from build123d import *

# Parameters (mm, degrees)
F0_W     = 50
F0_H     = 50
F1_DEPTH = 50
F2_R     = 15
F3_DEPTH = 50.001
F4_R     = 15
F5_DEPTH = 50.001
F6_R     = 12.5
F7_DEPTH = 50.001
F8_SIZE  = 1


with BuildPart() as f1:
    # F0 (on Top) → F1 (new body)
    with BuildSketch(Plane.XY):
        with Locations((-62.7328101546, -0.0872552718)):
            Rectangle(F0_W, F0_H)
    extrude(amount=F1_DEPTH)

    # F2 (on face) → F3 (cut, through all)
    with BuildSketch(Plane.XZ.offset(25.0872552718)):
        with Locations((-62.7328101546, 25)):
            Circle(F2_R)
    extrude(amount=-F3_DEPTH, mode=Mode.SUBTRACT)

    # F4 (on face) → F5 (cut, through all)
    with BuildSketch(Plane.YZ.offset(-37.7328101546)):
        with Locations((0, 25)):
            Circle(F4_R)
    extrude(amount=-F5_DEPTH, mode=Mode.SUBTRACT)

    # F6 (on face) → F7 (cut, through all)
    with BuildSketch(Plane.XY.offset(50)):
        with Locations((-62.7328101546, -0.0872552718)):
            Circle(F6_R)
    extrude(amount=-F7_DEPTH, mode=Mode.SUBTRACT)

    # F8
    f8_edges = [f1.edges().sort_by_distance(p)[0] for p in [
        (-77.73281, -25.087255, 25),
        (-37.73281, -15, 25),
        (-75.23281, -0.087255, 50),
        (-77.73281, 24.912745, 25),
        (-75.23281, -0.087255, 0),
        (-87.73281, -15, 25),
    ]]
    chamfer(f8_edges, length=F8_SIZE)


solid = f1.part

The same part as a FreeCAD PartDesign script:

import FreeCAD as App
import Part
import Sketcher
from FreeCAD import Vector


def edges_at(feature, points):
    """Names of the edges that pass closest to the given points."""
    edges = feature.Shape.Edges
    near = lambda p: min(range(len(edges)), key=lambda i: edges[i].distToShape(Part.Vertex(*p))[0])
    return sorted({f"Edge{near(p) + 1}" for p in points})

doc = App.newDocument("Part")
params = doc.addObject("Spreadsheet::Sheet", "Params")
for row, (alias, value) in enumerate([
    ("sketch1_width", "50 mm"),
    ("pad1_length", "50 mm"),
    ("sketch2_diameter", "30 mm"),
    ("sketch3_diameter", "30 mm"),
    ("sketch4_diameter", "25 mm"),
    ("chamfer_size", "1 mm"),
], start=1):
    params.set(f"A{row}", alias)
    params.set(f"B{row}", "=" + value)
    params.setAlias(f"B{row}", alias)

body = doc.addObject("PartDesign::Body", "Body")

sketch1 = body.newObject("Sketcher::SketchObject", "Sketch")
sketch1.AttachmentSupport = (doc.getObject("XY_Plane"), [""])
sketch1.MapMode = "FlatFace"
sketch1.addGeometry(Part.LineSegment(Vector(-87.73281, 24.912745, 0), Vector(-87.73281, -25.087255, 0)), False)
sketch1.addGeometry(Part.LineSegment(Vector(-87.73281, -25.087255, 0), Vector(-37.73281, -25.087255, 0)), False)
sketch1.addGeometry(Part.LineSegment(Vector(-37.73281, -25.087255, 0), Vector(-37.73281, 24.912745, 0)), False)
sketch1.addGeometry(Part.LineSegment(Vector(-37.73281, 24.912745, 0), Vector(-87.73281, 24.912745, 0)), False)
sketch1.addConstraint(Sketcher.Constraint("Coincident", 0, 2, 1, 1))
sketch1.addConstraint(Sketcher.Constraint("Coincident", 1, 2, 2, 1))
sketch1.addConstraint(Sketcher.Constraint("Coincident", 2, 2, 3, 1))
sketch1.addConstraint(Sketcher.Constraint("Coincident", 3, 2, 0, 1))
sketch1.addConstraint(Sketcher.Constraint("Vertical", 0))
sketch1.addConstraint(Sketcher.Constraint("Horizontal", 1))
sketch1.addConstraint(Sketcher.Constraint("Vertical", 2))
sketch1.addConstraint(Sketcher.Constraint("Horizontal", 3))
sketch1.addConstraint(Sketcher.Constraint("Equal", 3, 0))
sketch1.addConstraint(Sketcher.Constraint("DistanceX", 1, 1, 1, 2, 50.0))
sketch1.addConstraint(Sketcher.Constraint("DistanceX", 0, 2, -1, 1, 87.73281))
sketch1.addConstraint(Sketcher.Constraint("DistanceY", 0, 2, -1, 1, 25.087255))
sketch1.setExpression("Constraints[9]", "Params.sketch1_width")
pad1 = body.newObject("PartDesign::Pad", "Pad")
pad1.Profile = sketch1
pad1.setExpression("Length", "Params.pad1_length")

sketch2 = body.newObject("Sketcher::SketchObject", "Sketch001")
sketch2.AttachmentSupport = (doc.getObject("XZ_Plane"), [""])
sketch2.MapMode = "FlatFace"
sketch2.AttachmentOffset = App.Placement(Vector(0, 0, 25.087255), App.Rotation())
sketch2.addGeometry(Part.Circle(Vector(-62.73281, 25, 0), Vector(0, 0, 1), 15), False)
sketch2.addConstraint(Sketcher.Constraint("Diameter", 0, 30.0))
sketch2.addConstraint(Sketcher.Constraint("DistanceY", -1, 1, 0, 3, 25.0))
sketch2.addConstraint(Sketcher.Constraint("DistanceX", 0, 3, -1, 1, 62.73281))
sketch2.setExpression("Constraints[0]", "Params.sketch2_diameter")
pocket1 = body.newObject("PartDesign::Pocket", "Pocket")
pocket1.Profile = sketch2
pocket1.Type = "ThroughAll"

sketch3 = body.newObject("Sketcher::SketchObject", "Sketch002")
sketch3.AttachmentSupport = (doc.getObject("YZ_Plane"), [""])
sketch3.MapMode = "FlatFace"
sketch3.AttachmentOffset = App.Placement(Vector(0, 0, -37.73281), App.Rotation())
sketch3.addGeometry(Part.Circle(Vector(0, 25, 0), Vector(0, 0, 1), 15), False)
sketch3.addConstraint(Sketcher.Constraint("PointOnObject", 0, 3, -2))
sketch3.addConstraint(Sketcher.Constraint("Diameter", 0, 30.0))
sketch3.addConstraint(Sketcher.Constraint("DistanceY", -1, 1, 0, 3, 25.0))
sketch3.setExpression("Constraints[1]", "Params.sketch3_diameter")
pocket2 = body.newObject("PartDesign::Pocket", "Pocket001")
pocket2.Profile = sketch3
pocket2.Type = "ThroughAll"

sketch4 = body.newObject("Sketcher::SketchObject", "Sketch003")
sketch4.AttachmentSupport = (doc.getObject("XY_Plane"), [""])
sketch4.MapMode = "FlatFace"
sketch4.AttachmentOffset = App.Placement(Vector(0, 0, 50), App.Rotation())
sketch4.addGeometry(Part.Circle(Vector(-62.73281, -0.087255, 0), Vector(0, 0, 1), 12.5), False)
sketch4.addConstraint(Sketcher.Constraint("Diameter", 0, 25.0))
sketch4.addConstraint(Sketcher.Constraint("DistanceX", 0, 3, -1, 1, 62.73281))
sketch4.addConstraint(Sketcher.Constraint("DistanceY", 0, 3, -1, 1, 0.087255))
sketch4.setExpression("Constraints[0]", "Params.sketch4_diameter")
pocket3 = body.newObject("PartDesign::Pocket", "Pocket002")
pocket3.Profile = sketch4
pocket3.Type = "ThroughAll"
doc.recompute()

chamfer = body.newObject("PartDesign::Chamfer", "Chamfer")
chamfer.Base = (pocket3, edges_at(pocket3, [
    (-77.733, -25.087, 25),
    (-37.733, -15, 25),
    (-75.233, -0.087, 50),
    (-77.733, 24.913, 25),
    (-75.233, -0.087, 0),
    (-87.733, -15, 25),
]))
chamfer.setExpression("Size", "Params.chamfer_size")

doc.recompute()
